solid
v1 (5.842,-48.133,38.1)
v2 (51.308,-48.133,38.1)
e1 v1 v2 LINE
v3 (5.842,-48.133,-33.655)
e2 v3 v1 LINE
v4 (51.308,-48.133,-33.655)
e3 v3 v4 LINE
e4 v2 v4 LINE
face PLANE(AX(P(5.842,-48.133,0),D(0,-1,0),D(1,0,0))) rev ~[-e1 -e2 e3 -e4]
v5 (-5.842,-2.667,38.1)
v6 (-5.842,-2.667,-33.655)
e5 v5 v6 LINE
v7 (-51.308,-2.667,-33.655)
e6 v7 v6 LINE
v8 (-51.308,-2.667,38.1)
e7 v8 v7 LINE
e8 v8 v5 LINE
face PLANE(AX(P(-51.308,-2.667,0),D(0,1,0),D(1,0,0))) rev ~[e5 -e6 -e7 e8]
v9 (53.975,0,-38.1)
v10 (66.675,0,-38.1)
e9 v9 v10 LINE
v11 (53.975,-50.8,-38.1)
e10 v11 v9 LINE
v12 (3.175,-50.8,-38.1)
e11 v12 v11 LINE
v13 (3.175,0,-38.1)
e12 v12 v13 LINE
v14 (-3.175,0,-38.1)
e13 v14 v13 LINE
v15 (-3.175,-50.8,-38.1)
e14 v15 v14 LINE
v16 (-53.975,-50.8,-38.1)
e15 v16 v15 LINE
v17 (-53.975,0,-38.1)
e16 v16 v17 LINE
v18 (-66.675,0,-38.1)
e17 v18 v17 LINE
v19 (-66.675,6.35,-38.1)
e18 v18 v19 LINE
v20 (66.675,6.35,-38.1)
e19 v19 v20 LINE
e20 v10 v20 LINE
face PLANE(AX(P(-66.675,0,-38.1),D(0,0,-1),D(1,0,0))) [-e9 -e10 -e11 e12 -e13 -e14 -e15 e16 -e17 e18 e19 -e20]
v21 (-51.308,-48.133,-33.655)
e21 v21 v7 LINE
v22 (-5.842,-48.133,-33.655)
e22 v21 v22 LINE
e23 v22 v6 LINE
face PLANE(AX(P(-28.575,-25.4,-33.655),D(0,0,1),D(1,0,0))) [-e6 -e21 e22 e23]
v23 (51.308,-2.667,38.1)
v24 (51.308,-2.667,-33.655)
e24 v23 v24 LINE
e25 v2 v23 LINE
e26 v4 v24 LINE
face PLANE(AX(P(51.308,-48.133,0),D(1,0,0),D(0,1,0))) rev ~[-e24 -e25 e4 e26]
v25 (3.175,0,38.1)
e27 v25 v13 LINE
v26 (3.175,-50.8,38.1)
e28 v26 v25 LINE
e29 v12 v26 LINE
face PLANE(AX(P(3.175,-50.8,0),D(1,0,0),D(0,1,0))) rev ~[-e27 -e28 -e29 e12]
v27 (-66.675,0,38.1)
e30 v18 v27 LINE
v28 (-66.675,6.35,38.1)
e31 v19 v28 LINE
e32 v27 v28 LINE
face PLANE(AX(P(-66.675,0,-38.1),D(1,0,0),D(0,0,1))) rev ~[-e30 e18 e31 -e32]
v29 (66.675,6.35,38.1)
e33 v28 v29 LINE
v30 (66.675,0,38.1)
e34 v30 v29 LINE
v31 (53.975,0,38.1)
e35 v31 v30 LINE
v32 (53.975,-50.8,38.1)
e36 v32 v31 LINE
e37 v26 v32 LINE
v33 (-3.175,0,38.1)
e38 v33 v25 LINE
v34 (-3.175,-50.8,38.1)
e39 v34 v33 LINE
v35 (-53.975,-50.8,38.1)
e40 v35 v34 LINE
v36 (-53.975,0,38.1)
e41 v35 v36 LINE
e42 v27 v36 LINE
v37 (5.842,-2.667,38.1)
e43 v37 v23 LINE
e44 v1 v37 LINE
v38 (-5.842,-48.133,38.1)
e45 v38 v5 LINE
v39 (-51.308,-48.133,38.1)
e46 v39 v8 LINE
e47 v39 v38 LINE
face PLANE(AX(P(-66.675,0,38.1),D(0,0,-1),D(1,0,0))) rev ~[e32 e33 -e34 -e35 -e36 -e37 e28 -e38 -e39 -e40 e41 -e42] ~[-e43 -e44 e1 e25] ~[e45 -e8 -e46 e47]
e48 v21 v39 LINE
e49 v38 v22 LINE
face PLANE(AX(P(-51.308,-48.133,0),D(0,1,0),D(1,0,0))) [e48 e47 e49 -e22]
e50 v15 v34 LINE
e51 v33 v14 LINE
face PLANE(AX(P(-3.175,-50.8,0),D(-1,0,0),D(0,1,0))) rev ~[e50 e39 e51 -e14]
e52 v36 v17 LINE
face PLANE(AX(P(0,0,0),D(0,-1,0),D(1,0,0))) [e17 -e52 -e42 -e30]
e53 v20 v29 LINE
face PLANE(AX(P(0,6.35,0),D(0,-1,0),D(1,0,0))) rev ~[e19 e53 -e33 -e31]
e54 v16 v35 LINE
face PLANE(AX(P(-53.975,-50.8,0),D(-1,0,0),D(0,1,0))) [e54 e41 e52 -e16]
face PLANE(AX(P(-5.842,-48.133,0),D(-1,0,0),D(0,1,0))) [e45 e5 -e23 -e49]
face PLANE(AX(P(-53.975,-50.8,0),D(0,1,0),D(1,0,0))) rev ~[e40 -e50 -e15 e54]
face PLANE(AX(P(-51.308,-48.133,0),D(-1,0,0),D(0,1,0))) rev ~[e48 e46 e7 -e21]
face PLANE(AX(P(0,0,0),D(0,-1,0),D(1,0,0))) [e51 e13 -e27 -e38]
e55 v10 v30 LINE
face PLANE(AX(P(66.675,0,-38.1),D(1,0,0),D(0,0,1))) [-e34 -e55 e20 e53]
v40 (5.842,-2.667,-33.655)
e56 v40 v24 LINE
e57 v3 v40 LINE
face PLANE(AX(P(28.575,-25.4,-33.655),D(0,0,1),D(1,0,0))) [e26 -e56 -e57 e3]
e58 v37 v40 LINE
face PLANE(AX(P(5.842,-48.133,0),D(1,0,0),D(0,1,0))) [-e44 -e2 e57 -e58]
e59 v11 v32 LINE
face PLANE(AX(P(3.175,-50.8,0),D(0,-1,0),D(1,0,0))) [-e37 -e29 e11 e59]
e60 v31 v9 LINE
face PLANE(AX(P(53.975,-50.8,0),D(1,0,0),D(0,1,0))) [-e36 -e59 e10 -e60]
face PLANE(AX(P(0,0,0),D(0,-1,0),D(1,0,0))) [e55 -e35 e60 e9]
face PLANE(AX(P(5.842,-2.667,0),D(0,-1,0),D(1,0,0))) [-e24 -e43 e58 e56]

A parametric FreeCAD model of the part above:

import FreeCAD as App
import Part
import Sketcher
Q = App.Units.Quantity


def add_polygon(sketch, points):
    """Adds a closed chain of lines whose ends are joined by coincident constraints."""
    first, n = sketch.GeometryCount, len(points)
    for a, b in zip(points, points[1:] + points[:1]):
        sketch.addGeometry(Part.LineSegment(App.Vector(*a, 0), App.Vector(*b, 0)), False)
    for i in range(n):
        sketch.addConstraint(Sketcher.Constraint("Coincident", first + i, 2, first + (i + 1) % n, 1))

doc = App.newDocument("Part")
body = doc.addObject("PartDesign::Body", "Body")

# Sketch on XZ plane
sketch1 = body.newObject("Sketcher::SketchObject", "Sketch")
sketch1.AttachmentSupport = (doc.getObject("XZ_Plane"), [""])
sketch1.MapMode = "FlatFace"
add_polygon(sketch1, [(-67, 38), (-67, -38), (67, -38), (67, 38)])  # lines 0-3
sketch1.addConstraint([
    Sketcher.Constraint("Vertical", 0),
    Sketcher.Constraint("Horizontal", 1),
    Sketcher.Constraint("Vertical", 2),
    Sketcher.Constraint("Horizontal", 3),
    Sketcher.Constraint("Symmetric", 0, 2, 2, 2, -1, 1),
    Sketcher.Constraint("DistanceY", 0, 2, 0, 1, Q("3 in")),
    Sketcher.Constraint("DistanceX", 1, 1, 1, 2, Q("5.25 in")),
])
pad1 = body.newObject("PartDesign::Pad", "Pad")
pad1.Profile = sketch1
pad1.Length = Q("0.25 in")
pad1.Reversed = True

# Sketch on XY plane
sketch2 = body.newObject("Sketcher::SketchObject", "Sketch001")
sketch2.AttachmentSupport = (doc.getObject("XY_Plane"), [""])
sketch2.MapMode = "FlatFace"
add_polygon(sketch2, [(-54, 0), (-54, -51), (-3, -51), (-3, 0)])  # lines 0-3
add_polygon(sketch2, [(-6, -48), (-51, -48), (-51, -3), (-6, -3)])  # lines 4-7
add_polygon(sketch2, [(3, 0), (3, -51), (54, -51), (54, 0)])  # lines 8-11
add_polygon(sketch2, [(51, -48), (6, -48), (6, -3), (51, -3)])  # lines 12-15
sketch2.addConstraint([
    Sketcher.Constraint("Vertical", 0),
    Sketcher.Constraint("Horizontal", 1),
    Sketcher.Constraint("Vertical", 2),
    Sketcher.Constraint("Horizontal", 3),
    Sketcher.Constraint("Horizontal", 4),
    Sketcher.Constraint("Vertical", 5),
    Sketcher.Constraint("Horizontal", 6),
    Sketcher.Constraint("Vertical", 7),
    Sketcher.Constraint("Vertical", 8),
    Sketcher.Constraint("Horizontal", 9),
    Sketcher.Constraint("Vertical", 10),
    Sketcher.Constraint("Horizontal", 11),
    Sketcher.Constraint("Horizontal", 12),
    Sketcher.Constraint("Vertical", 13),
    Sketcher.Constraint("Horizontal", 14),
    Sketcher.Constraint("Vertical", 15),
    Sketcher.Constraint("Symmetric", 3, 2, 10, 2, -1, 1),
    Sketcher.Constraint("Symmetric", 1, 2, 8, 2, -2),
    Sketcher.Constraint("Symmetric", 7, 2, 12, 2, -2),
    Sketcher.Constraint("Symmetric", 5, 2, 14, 2, -2),
    Sketcher.Constraint("PointOnObject", 2, 2, -1),
    Sketcher.Constraint("Equal", 11, 0),
    Sketcher.Constraint("Equal", 14, 5),
    Sketcher.Constraint("DistanceX", 1, 1, 1, 2, Q("2 in")),
    Sketcher.Constraint("DistanceX", 4, 2, 4, 1, Q("1.79 in")),
    Sketcher.Constraint("DistanceX", 4, 2, -1, 1, Q("2.02 in")),
    Sketcher.Constraint("DistanceX", 1, 2, 8, 2, Q("0.25 in")),
    Sketcher.Constraint("DistanceY", 4, 2, -1, 1, Q("1.895 in")),
])
pad2 = body.newObject("PartDesign::Pad", "Pad001")
pad2.Profile = sketch2
pad2.Length = Q("3 in")
pad2.Midplane = True

# Sketch on XY plane
sketch3 = body.newObject("Sketcher::SketchObject", "Sketch002")
sketch3.AttachmentSupport = (doc.getObject("XY_Plane"), [""])
sketch3.MapMode = "FlatFace"
sketch3.AttachmentOffset = App.Placement(App.Vector(0, 0, -1.325 * 25.4), App.Rotation())
add_polygon(sketch3, [(-51, -3), (-51, -48), (-6, -48), (-6, -3)])  # lines 0-3
add_polygon(sketch3, [(6, -3), (6, -48), (51, -48), (51, -3)])  # lines 4-7
sketch3.addConstraint([
    Sketcher.Constraint("Vertical", 0),
    Sketcher.Constraint("Horizontal", 1),
    Sketcher.Constraint("Vertical", 2),
    Sketcher.Constraint("Horizontal", 3),
    Sketcher.Constraint("Vertical", 4),
    Sketcher.Constraint("Horizontal", 5),
    Sketcher.Constraint("Vertical", 6),
    Sketcher.Constraint("Horizontal", 7),
    Sketcher.Constraint("Symmetric", 1, 2, 4, 2, -2),
    Sketcher.Constraint("Symmetric", 3, 2, 6, 2, -2),
    Sketcher.Constraint("Equal", 7, 0),
    Sketcher.Constraint("DistanceX", 1, 1, 1, 2, Q("1.79 in")),
    Sketcher.Constraint("DistanceX", 0, 2, -1, 1, Q("2.02 in")),
    Sketcher.Constraint("DistanceY", 0, 2, -1, 1, Q("1.895 in")),
])
pad3 = body.newObject("PartDesign::Pad", "Pad002")
pad3.Profile = sketch3
pad3.Length = Q("0.175 in")
pad3.Reversed = True

doc.recompute()
